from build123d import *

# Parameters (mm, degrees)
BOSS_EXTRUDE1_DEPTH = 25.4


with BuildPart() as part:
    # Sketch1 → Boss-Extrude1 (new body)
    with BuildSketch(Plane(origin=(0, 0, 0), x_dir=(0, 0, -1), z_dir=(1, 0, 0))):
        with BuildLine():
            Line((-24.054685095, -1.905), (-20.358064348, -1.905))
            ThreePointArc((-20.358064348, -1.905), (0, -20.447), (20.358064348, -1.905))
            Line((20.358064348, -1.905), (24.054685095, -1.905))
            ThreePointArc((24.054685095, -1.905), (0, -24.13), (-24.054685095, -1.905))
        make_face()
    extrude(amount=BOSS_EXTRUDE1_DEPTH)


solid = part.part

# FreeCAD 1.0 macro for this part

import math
import FreeCAD as App
import Part
import Sketcher
Q = App.Units.Quantity

doc = App.newDocument("Part")
params = doc.addObject("Spreadsheet::Sheet", "Params")
for row, (alias, value) in enumerate([
    ("sketch1_radius", "0.95 in"),
    ("sketch1_radius2", "0.805 in"),
    ("pad1_length", "1 in"),
], start=1):
    params.set(f"A{row}", alias)
    params.set(f"B{row}", "=" + value)
    params.setAlias(f"B{row}", alias)

body = doc.addObject("PartDesign::Body", "Body")

# Sketch on YZ plane
sketch1 = body.newObject("Sketcher::SketchObject", "Sketch")
sketch1.AttachmentSupport = (doc.getObject("YZ_Plane"), [""])
sketch1.MapMode = "FlatFace"
sketch1.addGeometry([
    Part.LineSegment(App.Vector(-1.9, 20.4, 0), App.Vector(-1.9, 24.1, 0)),
    Part.ArcOfCircle(Part.Circle(App.Vector(0, 0, 0), App.Vector(0, 0, 1), 24.1), math.radians(95), math.radians(265)),
    Part.LineSegment(App.Vector(-1.9, -24.1, 0), App.Vector(-1.9, -20.4, 0)),
    Part.ArcOfCircle(Part.Circle(App.Vector(0, 0, 0), App.Vector(0, 0, 1), 20.4), math.radians(95), math.radians(265)),
], False)
sketch1.addConstraint([
    Sketcher.Constraint("Coincident", 0, 2, 1, 1),
    Sketcher.Constraint("Coincident", 1, 2, 2, 1),
    Sketcher.Constraint("Coincident", 2, 2, 3, 2),
    Sketcher.Constraint("Coincident", 3, 1, 0, 1),
    Sketcher.Constraint("Vertical", 0),
    Sketcher.Constraint("Vertical", 2),
    Sketcher.Constraint("Coincident", 1, 3, -1, 1),
    Sketcher.Constraint("Coincident", 3, 3, -1, 1),
    Sketcher.Constraint("Vertical", 0, 2, 1, 2),
    Sketcher.Constraint("Radius", 1, Q("0.95 in")),
    Sketcher.Constraint("Radius", 3, Q("0.805 in")),
    Sketcher.Constraint("DistanceX", 0, 2, -1, 1, Q("0.075 in")),
])
sketch1.setExpression("Constraints[9]", "Params.sketch1_radius")
sketch1.setExpression("Constraints[10]", "Params.sketch1_radius2")
pad1 = body.newObject("PartDesign::Pad", "Pad")
pad1.Profile = sketch1
pad1.setExpression("Length", "Params.pad1_length")

doc.recompute()
